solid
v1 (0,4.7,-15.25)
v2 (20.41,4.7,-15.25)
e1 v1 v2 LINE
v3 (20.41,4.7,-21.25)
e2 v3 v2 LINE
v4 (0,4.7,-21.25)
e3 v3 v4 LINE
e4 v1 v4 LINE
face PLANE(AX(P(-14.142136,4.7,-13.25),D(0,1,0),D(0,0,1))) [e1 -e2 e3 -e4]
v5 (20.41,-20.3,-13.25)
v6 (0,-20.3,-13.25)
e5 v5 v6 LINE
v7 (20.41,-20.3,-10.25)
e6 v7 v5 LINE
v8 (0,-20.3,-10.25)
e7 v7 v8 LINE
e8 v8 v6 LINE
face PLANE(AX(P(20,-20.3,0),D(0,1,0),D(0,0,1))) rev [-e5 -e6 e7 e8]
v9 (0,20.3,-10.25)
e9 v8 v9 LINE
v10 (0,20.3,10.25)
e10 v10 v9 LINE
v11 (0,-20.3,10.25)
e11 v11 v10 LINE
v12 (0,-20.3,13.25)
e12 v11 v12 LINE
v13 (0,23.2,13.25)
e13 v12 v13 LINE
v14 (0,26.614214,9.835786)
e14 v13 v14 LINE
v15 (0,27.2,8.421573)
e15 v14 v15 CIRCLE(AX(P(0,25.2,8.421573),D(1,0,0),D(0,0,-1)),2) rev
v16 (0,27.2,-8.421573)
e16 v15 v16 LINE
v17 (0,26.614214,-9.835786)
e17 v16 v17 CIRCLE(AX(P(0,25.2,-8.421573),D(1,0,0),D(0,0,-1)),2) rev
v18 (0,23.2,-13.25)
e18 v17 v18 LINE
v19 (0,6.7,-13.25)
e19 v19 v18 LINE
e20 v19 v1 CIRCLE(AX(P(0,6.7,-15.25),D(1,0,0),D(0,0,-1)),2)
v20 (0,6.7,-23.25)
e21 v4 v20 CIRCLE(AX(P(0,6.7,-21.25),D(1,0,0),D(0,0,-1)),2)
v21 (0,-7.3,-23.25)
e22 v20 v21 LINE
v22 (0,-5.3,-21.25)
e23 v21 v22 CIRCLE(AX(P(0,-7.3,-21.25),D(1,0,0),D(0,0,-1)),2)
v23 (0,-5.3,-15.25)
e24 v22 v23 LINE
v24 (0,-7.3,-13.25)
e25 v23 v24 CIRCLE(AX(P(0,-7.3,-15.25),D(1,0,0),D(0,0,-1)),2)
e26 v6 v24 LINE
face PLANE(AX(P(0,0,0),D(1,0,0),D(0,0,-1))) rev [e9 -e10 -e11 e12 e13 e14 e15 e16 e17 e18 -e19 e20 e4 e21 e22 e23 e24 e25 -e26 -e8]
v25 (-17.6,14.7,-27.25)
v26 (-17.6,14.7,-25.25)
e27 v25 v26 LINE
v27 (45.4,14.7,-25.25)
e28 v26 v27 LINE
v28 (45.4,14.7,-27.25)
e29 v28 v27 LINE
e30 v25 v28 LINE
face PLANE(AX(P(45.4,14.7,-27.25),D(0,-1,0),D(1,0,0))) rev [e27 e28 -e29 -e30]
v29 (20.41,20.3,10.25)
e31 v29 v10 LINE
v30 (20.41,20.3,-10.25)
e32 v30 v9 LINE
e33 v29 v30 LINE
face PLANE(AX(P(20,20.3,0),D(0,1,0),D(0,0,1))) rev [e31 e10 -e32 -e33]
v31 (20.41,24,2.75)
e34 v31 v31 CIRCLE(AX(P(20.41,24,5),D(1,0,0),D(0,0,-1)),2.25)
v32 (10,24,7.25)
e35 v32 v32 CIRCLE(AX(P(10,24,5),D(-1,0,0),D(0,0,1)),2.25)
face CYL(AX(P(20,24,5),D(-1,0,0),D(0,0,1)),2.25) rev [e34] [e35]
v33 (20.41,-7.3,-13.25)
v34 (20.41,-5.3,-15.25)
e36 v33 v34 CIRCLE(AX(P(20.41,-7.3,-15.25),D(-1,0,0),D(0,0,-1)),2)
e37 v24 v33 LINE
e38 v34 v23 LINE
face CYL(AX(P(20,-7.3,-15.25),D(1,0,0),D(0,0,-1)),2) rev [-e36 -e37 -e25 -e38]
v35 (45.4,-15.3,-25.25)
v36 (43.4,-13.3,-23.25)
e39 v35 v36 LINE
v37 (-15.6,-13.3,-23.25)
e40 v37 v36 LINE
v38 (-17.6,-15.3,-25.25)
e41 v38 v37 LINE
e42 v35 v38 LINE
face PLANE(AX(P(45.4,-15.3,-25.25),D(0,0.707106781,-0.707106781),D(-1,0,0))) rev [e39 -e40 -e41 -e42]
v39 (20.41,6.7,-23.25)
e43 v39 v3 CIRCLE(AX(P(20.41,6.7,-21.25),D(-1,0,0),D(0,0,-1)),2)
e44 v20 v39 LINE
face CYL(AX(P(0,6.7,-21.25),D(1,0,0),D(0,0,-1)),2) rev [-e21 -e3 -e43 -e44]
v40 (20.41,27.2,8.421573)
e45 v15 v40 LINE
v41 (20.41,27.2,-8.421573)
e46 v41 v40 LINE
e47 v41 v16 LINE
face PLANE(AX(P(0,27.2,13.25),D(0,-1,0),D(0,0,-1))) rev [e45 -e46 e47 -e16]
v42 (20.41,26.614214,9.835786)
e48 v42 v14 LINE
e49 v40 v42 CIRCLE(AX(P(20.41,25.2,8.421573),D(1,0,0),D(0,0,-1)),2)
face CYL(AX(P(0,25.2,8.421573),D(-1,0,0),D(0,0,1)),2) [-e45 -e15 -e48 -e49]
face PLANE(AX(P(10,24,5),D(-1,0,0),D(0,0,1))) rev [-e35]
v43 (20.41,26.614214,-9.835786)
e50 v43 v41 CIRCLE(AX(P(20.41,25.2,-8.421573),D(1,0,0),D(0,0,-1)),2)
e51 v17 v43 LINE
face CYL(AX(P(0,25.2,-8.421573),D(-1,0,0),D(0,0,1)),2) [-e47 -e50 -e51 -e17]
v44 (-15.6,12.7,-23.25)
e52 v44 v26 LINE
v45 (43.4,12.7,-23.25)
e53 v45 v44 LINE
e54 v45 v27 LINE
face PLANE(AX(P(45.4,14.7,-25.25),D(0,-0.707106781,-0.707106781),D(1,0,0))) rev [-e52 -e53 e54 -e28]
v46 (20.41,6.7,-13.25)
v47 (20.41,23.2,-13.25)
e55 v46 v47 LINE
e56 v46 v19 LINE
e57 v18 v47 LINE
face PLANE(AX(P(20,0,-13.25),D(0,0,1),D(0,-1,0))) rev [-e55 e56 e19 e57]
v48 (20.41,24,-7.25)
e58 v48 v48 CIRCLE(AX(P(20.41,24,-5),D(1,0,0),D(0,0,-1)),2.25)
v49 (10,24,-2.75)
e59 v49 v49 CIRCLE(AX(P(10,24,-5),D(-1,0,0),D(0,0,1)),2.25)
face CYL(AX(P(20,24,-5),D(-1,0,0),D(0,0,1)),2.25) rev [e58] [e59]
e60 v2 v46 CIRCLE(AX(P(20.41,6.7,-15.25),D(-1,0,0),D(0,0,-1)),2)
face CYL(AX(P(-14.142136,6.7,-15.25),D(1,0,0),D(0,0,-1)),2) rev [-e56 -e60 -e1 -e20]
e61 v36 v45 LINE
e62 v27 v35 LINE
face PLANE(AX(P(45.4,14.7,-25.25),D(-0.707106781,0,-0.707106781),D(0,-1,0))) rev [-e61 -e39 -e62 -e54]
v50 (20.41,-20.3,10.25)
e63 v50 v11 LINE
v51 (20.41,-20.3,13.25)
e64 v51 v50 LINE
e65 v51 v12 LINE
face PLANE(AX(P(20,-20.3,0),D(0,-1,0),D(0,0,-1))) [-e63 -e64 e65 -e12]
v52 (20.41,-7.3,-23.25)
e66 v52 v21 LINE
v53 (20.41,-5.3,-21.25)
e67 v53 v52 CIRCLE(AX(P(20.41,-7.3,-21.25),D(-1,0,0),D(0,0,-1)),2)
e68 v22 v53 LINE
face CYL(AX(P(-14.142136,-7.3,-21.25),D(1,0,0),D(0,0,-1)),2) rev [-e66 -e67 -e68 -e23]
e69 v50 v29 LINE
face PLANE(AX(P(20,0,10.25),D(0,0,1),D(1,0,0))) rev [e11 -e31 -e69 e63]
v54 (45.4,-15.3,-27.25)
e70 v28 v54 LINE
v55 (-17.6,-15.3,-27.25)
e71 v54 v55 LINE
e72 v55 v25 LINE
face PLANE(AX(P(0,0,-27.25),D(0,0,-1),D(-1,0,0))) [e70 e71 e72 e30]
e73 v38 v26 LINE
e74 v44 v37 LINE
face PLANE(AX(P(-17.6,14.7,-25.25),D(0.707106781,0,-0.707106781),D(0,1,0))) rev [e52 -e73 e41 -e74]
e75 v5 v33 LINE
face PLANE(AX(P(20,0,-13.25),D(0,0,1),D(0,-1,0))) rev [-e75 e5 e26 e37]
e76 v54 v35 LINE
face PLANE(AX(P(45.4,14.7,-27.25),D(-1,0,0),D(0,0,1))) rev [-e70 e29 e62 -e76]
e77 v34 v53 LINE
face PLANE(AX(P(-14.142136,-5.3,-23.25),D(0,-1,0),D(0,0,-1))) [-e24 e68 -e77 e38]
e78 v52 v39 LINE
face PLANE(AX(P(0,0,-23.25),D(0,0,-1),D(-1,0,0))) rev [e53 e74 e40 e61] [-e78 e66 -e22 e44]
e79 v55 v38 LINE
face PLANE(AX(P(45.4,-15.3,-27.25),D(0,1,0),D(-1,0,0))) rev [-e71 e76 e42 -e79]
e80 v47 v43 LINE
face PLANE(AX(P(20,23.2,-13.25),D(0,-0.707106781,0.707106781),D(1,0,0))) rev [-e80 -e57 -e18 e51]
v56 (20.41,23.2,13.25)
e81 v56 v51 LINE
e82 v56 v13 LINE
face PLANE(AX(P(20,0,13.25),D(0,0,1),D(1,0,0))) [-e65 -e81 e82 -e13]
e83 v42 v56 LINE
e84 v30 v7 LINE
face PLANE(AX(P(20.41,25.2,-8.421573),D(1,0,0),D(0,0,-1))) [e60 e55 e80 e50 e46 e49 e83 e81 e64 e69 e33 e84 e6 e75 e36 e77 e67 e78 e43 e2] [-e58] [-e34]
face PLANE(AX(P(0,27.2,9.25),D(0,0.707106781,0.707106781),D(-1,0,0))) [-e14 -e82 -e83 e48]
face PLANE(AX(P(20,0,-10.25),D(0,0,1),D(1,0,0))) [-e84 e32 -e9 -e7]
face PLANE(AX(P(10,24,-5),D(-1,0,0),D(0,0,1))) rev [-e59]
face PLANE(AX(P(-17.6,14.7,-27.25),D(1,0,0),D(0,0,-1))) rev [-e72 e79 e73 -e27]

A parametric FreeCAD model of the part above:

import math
import FreeCAD as App
import Part
import Sketcher

V = App.Vector


def edges_at(feature, points):
    """Names of the edges that pass closest to the given points."""
    edges = feature.Shape.Edges
    near = lambda p: min(range(len(edges)), key=lambda i: edges[i].distToShape(Part.Vertex(*p))[0])
    return sorted({f"Edge{near(p) + 1}" for p in points})


def add_polygon(sketch, points):
    """Adds a closed chain of lines whose ends are joined by coincident constraints."""
    first, n = sketch.GeometryCount, len(points)
    for a, b in zip(points, points[1:] + points[:1]):
        sketch.addGeometry(Part.LineSegment(App.Vector(*a, 0), App.Vector(*b, 0)), False)
    for i in range(n):
        sketch.addConstraint(Sketcher.Constraint("Coincident", first + i, 2, first + (i + 1) % n, 1))

doc = App.newDocument("Part")
params = doc.addObject("Spreadsheet::Sheet", "Params")
for row, (alias, value) in enumerate([
    ("sketch1_diameter", "4.5 mm"),
    ("sketch1_width", "50 mm"),
    ("sketch1_height", "3 mm"),
    ("sketch1_width2", "40.6 mm"),
    ("sketch1_height2", "26.5 mm"),
    ("pad1_length", "20 mm"),
    ("sketch2_diameter", "4.5 mm"),
    ("pad2_length", "10 mm"),
    ("sketch3_width", "2.5 mm"),
    ("sketch3_height", "26.5 mm"),
    ("chamfer_size", "4 mm"),
    ("chamfer2_size", "4 mm"),
    ("fillet_radius", "2 mm"),
    ("sketch4_width", "10 mm"),
    ("pad3_length", "20 mm"),
    ("fillet2_radius", "2 mm"),
    ("sketch5_width", "63 mm"),
    ("sketch5_height", "30 mm"),
    ("pad4_length", "4 mm"),
    ("chamfer3_size", "2 mm"),
    ("fillet3_radius", "2 mm"),
    ("sketch6_radius", "2 mm"),
    ("sketch6_diameter", "4.5 mm"),
    ("sketch6_width", "13 mm"),
    ("sketch6_width2", "14 mm"),
    ("sketch6_height", "3 mm"),
    ("pad5_length", "0.41 mm"),
], start=1):
    params.set(f"A{row}", alias)
    params.set(f"B{row}", "=" + value)
    params.setAlias(f"B{row}", alias)

body = doc.addObject("PartDesign::Body", "Body")

# Sketch on YZ plane
sketch1 = body.newObject("Sketcher::SketchObject", "Sketch")
sketch1.AttachmentSupport = (doc.getObject("YZ_Plane"), [""])
sketch1.MapMode = "FlatFace"
add_polygon(sketch1, [(-20.3, -10.25), (-20.3, -13.25), (29.7, -13.25), (29.7, 13.25), (-20.3, 13.25), (-20.3, 10.25), (20.3, 10.25), (20.3, -10.25)])  # lines 0-7
sketch1.addGeometry(Part.Circle(V(24, 5, 0), V(0, 0, 1), 2.25), False)  # 8
sketch1.addGeometry(Part.Circle(V(24, -5, 0), V(0, 0, 1), 2.25), False)  # 9
sketch1.addConstraint(Sketcher.Constraint("Vertical", 0))
sketch1.addConstraint(Sketcher.Constraint("Horizontal", 1))
sketch1.addConstraint(Sketcher.Constraint("Vertical", 2))
sketch1.addConstraint(Sketcher.Constraint("Horizontal", 3))
sketch1.addConstraint(Sketcher.Constraint("Vertical", 4))
sketch1.addConstraint(Sketcher.Constraint("Horizontal", 5))
sketch1.addConstraint(Sketcher.Constraint("Vertical", 6))
sketch1.addConstraint(Sketcher.Constraint("Horizontal", 7))
sketch1.addConstraint(Sketcher.Constraint("Equal", 8, 9))
sketch1.addConstraint(Sketcher.Constraint("Symmetric", 4, 2, 6, 2, -1, 1))
sketch1.addConstraint(Sketcher.Constraint("Symmetric", 8, 3, 9, 3, -1))
sketch1.addConstraint(Sketcher.Constraint("Symmetric", 0, 2, 3, 2, -1))
sketch1.addConstraint(Sketcher.Constraint("Diameter", 8, 4.5))
sketch1.addConstraint(Sketcher.Constraint("DistanceX", 1, 1, 1, 2, 50.0))
sketch1.addConstraint(Sketcher.Constraint("DistanceY", 0, 2, 0, 1, 3.0))
sketch1.addConstraint(Sketcher.Constraint("DistanceX", 5, 1, 5, 2, 40.6))
sketch1.addConstraint(Sketcher.Constraint("DistanceY", 2, 1, 2, 2, 26.5))
sketch1.addConstraint(Sketcher.Constraint("DistanceX", -1, 1, 8, 3, 24.0))
sketch1.addConstraint(Sketcher.Constraint("DistanceY", -1, 1, 8, 3, 5.0))
sketch1.setExpression("Constraints[20]", "Params.sketch1_diameter")
sketch1.setExpression("Constraints[21]", "Params.sketch1_width")
sketch1.setExpression("Constraints[22]", "Params.sketch1_height")
sketch1.setExpression("Constraints[23]", "Params.sketch1_width2")
sketch1.setExpression("Constraints[24]", "Params.sketch1_height2")
pad1 = body.newObject("PartDesign::Pad", "Pad")
pad1.Profile = sketch1
pad1.setExpression("Length", "Params.pad1_length")

# Sketch on YZ plane
sketch2 = body.newObject("Sketcher::SketchObject", "Sketch001")
sketch2.AttachmentSupport = (doc.getObject("YZ_Plane"), [""])
sketch2.MapMode = "FlatFace"
sketch2.addGeometry(Part.Circle(V(24, -5, 0), V(0, 0, 1), 2.25), False)
sketch2.addGeometry(Part.Circle(V(24, 5, 0), V(0, 0, 1), 2.25), False)
sketch2.addConstraint(Sketcher.Constraint("Equal", 0, 1))
sketch2.addConstraint(Sketcher.Constraint("Symmetric", 0, 3, 1, 3, -1))
sketch2.addConstraint(Sketcher.Constraint("Diameter", 0, 4.5))
sketch2.addConstraint(Sketcher.Constraint("DistanceX", -1, 1, 0, 3, 24.0))
sketch2.addConstraint(Sketcher.Constraint("DistanceY", 0, 3, -1, 1, 5.0))
sketch2.setExpression("Constraints[2]", "Params.sketch2_diameter")
pad2 = body.newObject("PartDesign::Pad", "Pad001")
pad2.Profile = sketch2
pad2.setExpression("Length", "Params.pad2_length")

# Sketch on YZ plane
sketch3 = body.newObject("Sketcher::SketchObject", "Sketch002")
sketch3.AttachmentSupport = (doc.getObject("YZ_Plane"), [""])
sketch3.MapMode = "FlatFace"
sketch3.AttachmentOffset = App.Placement(V(0, 0, 20), App.Rotation())
add_polygon(sketch3, [(29.7, 13.25), (27.2, 13.25), (27.2, -13.25), (29.7, -13.25)])  # lines 0-3
sketch3.addConstraint(Sketcher.Constraint("Horizontal", 0))
sketch3.addConstraint(Sketcher.Constraint("Vertical", 1))
sketch3.addConstraint(Sketcher.Constraint("Horizontal", 2))
sketch3.addConstraint(Sketcher.Constraint("Vertical", 3))
sketch3.addConstraint(Sketcher.Constraint("DistanceX", 0, 2, 0, 1, 2.5))
sketch3.addConstraint(Sketcher.Constraint("DistanceY", 1, 2, 1, 1, 26.5))
sketch3.addConstraint(Sketcher.Constraint("DistanceX", -1, 1, 0, 2, 27.2))
sketch3.addConstraint(Sketcher.Constraint("DistanceY", -1, 1, 0, 2, 13.25))
sketch3.setExpression("Constraints[8]", "Params.sketch3_width")
sketch3.setExpression("Constraints[9]", "Params.sketch3_height")
pocket1 = body.newObject("PartDesign::Pocket", "Pocket")
pocket1.Profile = sketch3
pocket1.Type = "ThroughAll"
doc.recompute()

chamfer = body.newObject("PartDesign::Chamfer", "Chamfer")
chamfer.Base = (pocket1, edges_at(pocket1, [(10, 27.2, -13.25)]))
chamfer.setExpression("Size", "Params.chamfer_size")
doc.recompute()

chamfer2 = body.newObject("PartDesign::Chamfer", "Chamfer001")
chamfer2.Base = (chamfer, edges_at(chamfer, [(10, 27.2, 13.25)]))
chamfer2.setExpression("Size", "Params.chamfer2_size")
doc.recompute()

fillet = body.newObject("PartDesign::Fillet", "Fillet")
fillet.Base = (chamfer2, edges_at(chamfer2, [(10, 27.2, -9.25), (10, 27.2, 9.25)]))
fillet.setExpression("Radius", "Params.fillet_radius")

# Sketch on YZ plane
sketch4 = body.newObject("Sketcher::SketchObject", "Sketch003")
sketch4.AttachmentSupport = (doc.getObject("YZ_Plane"), [""])
sketch4.MapMode = "FlatFace"
sketch4.AttachmentOffset = App.Placement(V(0, 0, 20), App.Rotation())
add_polygon(sketch4, [(4.7, -13.25), (-5.3, -13.25), (-5.3, -23.25), (4.7, -23.25)])  # lines 0-3
sketch4.addConstraint(Sketcher.Constraint("Horizontal", 0))
sketch4.addConstraint(Sketcher.Constraint("Vertical", 1))
sketch4.addConstraint(Sketcher.Constraint("Horizontal", 2))
sketch4.addConstraint(Sketcher.Constraint("Vertical", 3))
sketch4.addConstraint(Sketcher.Constraint("Equal", 2, 1))
sketch4.addConstraint(Sketcher.Constraint("DistanceX", 0, 2, 0, 1, 10.0))
sketch4.addConstraint(Sketcher.Constraint("DistanceX", 0, 2, -1, 1, 5.3))
sketch4.addConstraint(Sketcher.Constraint("DistanceY", 0, 2, -1, 1, 13.25))
sketch4.setExpression("Constraints[9]", "Params.sketch4_width")
pad3 = body.newObject("PartDesign::Pad", "Pad002")
pad3.Profile = sketch4
pad3.setExpression("Length", "Params.pad3_length")
pad3.Reversed = True
doc.recompute()

fillet2 = body.newObject("PartDesign::Fillet", "Fillet001")
fillet2.Base = (pad3, edges_at(pad3, [(10, -5.3, -13.25), (10, 4.7, -13.25)]))
fillet2.setExpression("Radius", "Params.fillet2_radius")

# Sketch on XY plane
sketch5 = body.newObject("Sketcher::SketchObject", "Sketch004")
sketch5.AttachmentSupport = (doc.getObject("XY_Plane"), [""])
sketch5.MapMode = "FlatFace"
sketch5.AttachmentOffset = App.Placement(V(0, 0, -23.25), App.Rotation())
add_polygon(sketch5, [(45.4, 14.7), (45.4, -15.3), (-17.6, -15.3), (-17.6, 14.7)])  # lines 0-3
sketch5.addConstraint(Sketcher.Constraint("Vertical", 0))
sketch5.addConstraint(Sketcher.Constraint("Horizontal", 1))
sketch5.addConstraint(Sketcher.Constraint("Vertical", 2))
sketch5.addConstraint(Sketcher.Constraint("Horizontal", 3))
sketch5.addConstraint(Sketcher.Constraint("DistanceX", 1, 2, 1, 1, 63.0))
sketch5.addConstraint(Sketcher.Constraint("DistanceY", 0, 2, 0, 1, 30.0))
sketch5.addConstraint(Sketcher.Constraint("DistanceX", -1, 1, 0, 2, 45.4))
sketch5.addConstraint(Sketcher.Constraint("DistanceY", 0, 2, -1, 1, 15.3))
sketch5.setExpression("Constraints[8]", "Params.sketch5_width")
sketch5.setExpression("Constraints[9]", "Params.sketch5_height")
pad4 = body.newObject("PartDesign::Pad", "Pad003")
pad4.Profile = sketch5
pad4.setExpression("Length", "Params.pad4_length")
pad4.Reversed = True
doc.recompute()

chamfer3 = body.newObject("PartDesign::Chamfer", "Chamfer002")
chamfer3.Base = (pad4, edges_at(pad4, [
    (45.4, -0.3, -23.25),
    (13.9, -15.3, -23.25),
    (-17.6, -0.3, -23.25),
    (13.9, 14.7, -23.25),
]))
chamfer3.setExpression("Size", "Params.chamfer3_size")
doc.recompute()

fillet3 = body.newObject("PartDesign::Fillet", "Fillet002")
fillet3.Base = (chamfer3, edges_at(chamfer3, [(10, 4.7, -23.25), (10, -5.3, -23.25)]))
fillet3.setExpression("Radius", "Params.fillet3_radius")

# Sketch on YZ plane
sketch6 = body.newObject("Sketcher::SketchObject", "Sketch005")
sketch6.AttachmentSupport = (doc.getObject("YZ_Plane"), [""])
sketch6.MapMode = "FlatFace"
sketch6.AttachmentOffset = App.Placement(V(0, 0, 20), App.Rotation())
sketch6.addGeometry(Part.LineSegment(V(23.2, -13.25, 0), V(26.614214, -9.835786, 0)), False)
sketch6.addGeometry(Part.ArcOfCircle(Part.Circle(V(25.2, -8.421573, 0), V(0, 0, 1), 2), math.radians(-45), math.radians(0)), False)
sketch6.addGeometry(Part.LineSegment(V(27.2, -8.421573, 0), V(27.2, 8.421573, 0)), False)
sketch6.addGeometry(Part.ArcOfCircle(Part.Circle(V(25.2, 8.421573, 0), V(0, 0, 1), 2), math.radians(0), math.radians(45)), False)
sketch6.addGeometry(Part.LineSegment(V(26.614214, 9.835786, 0), V(23.2, 13.25, 0)), False)
sketch6.addGeometry(Part.LineSegment(V(23.2, 13.25, 0), V(-20.3, 13.25, 0)), False)
sketch6.addGeometry(Part.LineSegment(V(-20.3, 13.25, 0), V(-20.3, 10.25, 0)), False)
sketch6.addGeometry(Part.LineSegment(V(-20.3, 10.25, 0), V(20.3, 10.25, 0)), False)
sketch6.addGeometry(Part.LineSegment(V(20.3, 10.25, 0), V(20.3, -10.25, 0)), False)
sketch6.addGeometry(Part.LineSegment(V(20.3, -10.25, 0), V(-20.3, -10.25, 0)), False)
sketch6.addGeometry(Part.LineSegment(V(-20.3, -10.25, 0), V(-20.3, -13.25, 0)), False)
sketch6.addGeometry(Part.LineSegment(V(-20.3, -13.25, 0), V(-7.3, -13.25, 0)), False)
sketch6.addGeometry(Part.ArcOfCircle(Part.Circle(V(-7.3, -15.25, 0), V(0, 0, 1), 2), math.radians(0), math.radians(90)), False)
sketch6.addGeometry(Part.LineSegment(V(-5.3, -15.25, 0), V(-5.3, -21.25, 0)), False)
sketch6.addGeometry(Part.ArcOfCircle(Part.Circle(V(-7.3, -21.25, 0), V(0, 0, 1), 2), math.radians(-90), math.radians(0)), False)
sketch6.addGeometry(Part.LineSegment(V(-7.3, -23.25, 0), V(6.7, -23.25, 0)), False)
sketch6.addGeometry(Part.ArcOfCircle(Part.Circle(V(6.7, -21.25, 0), V(0, 0, 1), 2), math.radians(-180), math.radians(-90)), False)
sketch6.addGeometry(Part.LineSegment(V(4.7, -21.25, 0), V(4.7, -15.25, 0)), False)
sketch6.addGeometry(Part.ArcOfCircle(Part.Circle(V(6.7, -15.25, 0), V(0, 0, 1), 2), math.radians(90), math.radians(180)), False)
sketch6.addGeometry(Part.LineSegment(V(6.7, -13.25, 0), V(23.2, -13.25, 0)), False)
sketch6.addGeometry(Part.Circle(V(24, 5, 0), V(0, 0, 1), 2.25), False)
sketch6.addGeometry(Part.Circle(V(24, -5, 0), V(0, 0, 1), 2.25), False)
sketch6.addConstraint(Sketcher.Constraint("Tangent", 0, 2, 1, 1))
sketch6.addConstraint(Sketcher.Constraint("Tangent", 1, 2, 2, 1))
sketch6.addConstraint(Sketcher.Constraint("Tangent", 2, 2, 3, 1))
sketch6.addConstraint(Sketcher.Constraint("Tangent", 3, 2, 4, 1))
sketch6.addConstraint(Sketcher.Constraint("Coincident", 4, 2, 5, 1))
sketch6.addConstraint(Sketcher.Constraint("Coincident", 5, 2, 6, 1))
sketch6.addConstraint(Sketcher.Constraint("Coincident", 6, 2, 7, 1))
sketch6.addConstraint(Sketcher.Constraint("Coincident", 7, 2, 8, 1))
sketch6.addConstraint(Sketcher.Constraint("Coincident", 8, 2, 9, 1))
sketch6.addConstraint(Sketcher.Constraint("Coincident", 9, 2, 10, 1))
sketch6.addConstraint(Sketcher.Constraint("Coincident", 10, 2, 11, 1))
sketch6.addConstraint(Sketcher.Constraint("Tangent", 11, 2, 12, 2))
sketch6.addConstraint(Sketcher.Constraint("Tangent", 12, 1, 13, 1))
sketch6.addConstraint(Sketcher.Constraint("Tangent", 13, 2, 14, 2))
sketch6.addConstraint(Sketcher.Constraint("Tangent", 14, 1, 15, 1))
sketch6.addConstraint(Sketcher.Constraint("Tangent", 15, 2, 16, 2))
sketch6.addConstraint(Sketcher.Constraint("Tangent", 16, 1, 17, 1))
sketch6.addConstraint(Sketcher.Constraint("Tangent", 17, 2, 18, 2))
sketch6.addConstraint(Sketcher.Constraint("Tangent", 18, 1, 19, 1))
sketch6.addConstraint(Sketcher.Constraint("Coincident", 19, 2, 0, 1))
sketch6.addConstraint(Sketcher.Constraint("Vertical", 2))
sketch6.addConstraint(Sketcher.Constraint("Horizontal", 5))
sketch6.addConstraint(Sketcher.Constraint("Vertical", 6))
sketch6.addConstraint(Sketcher.Constraint("Horizontal", 7))
sketch6.addConstraint(Sketcher.Constraint("Vertical", 8))
sketch6.addConstraint(Sketcher.Constraint("Horizontal", 9))
sketch6.addConstraint(Sketcher.Constraint("Vertical", 10))
sketch6.addConstraint(Sketcher.Constraint("Horizontal", 11))
sketch6.addConstraint(Sketcher.Constraint("Vertical", 13))
sketch6.addConstraint(Sketcher.Constraint("Horizontal", 15))
sketch6.addConstraint(Sketcher.Constraint("Vertical", 17))
sketch6.addConstraint(Sketcher.Constraint("Horizontal", 19))
sketch6.addConstraint(Sketcher.Constraint("Equal", 1, 3))
sketch6.addConstraint(Sketcher.Constraint("Equal", 3, 12))
sketch6.addConstraint(Sketcher.Constraint("Equal", 12, 14))
sketch6.addConstraint(Sketcher.Constraint("Equal", 14, 16))
sketch6.addConstraint(Sketcher.Constraint("Equal", 16, 18))
sketch6.addConstraint(Sketcher.Constraint("Equal", 20, 21))
sketch6.addConstraint(Sketcher.Constraint("Symmetric", 6, 2, 8, 2, -1, 1))
sketch6.addConstraint(Sketcher.Constraint("Symmetric", 20, 3, 21, 3, -1))
sketch6.addConstraint(Sketcher.Constraint("Symmetric", 0, 2, 3, 2, -1))
sketch6.addConstraint(Sketcher.Constraint("Symmetric", 5, 2, 10, 2, -1))
sketch6.addConstraint(Sketcher.Constraint("Perpendicular", 0, 4))
sketch6.addConstraint(Sketcher.Constraint("Horizontal", 12, 3, 18, 3))
sketch6.addConstraint(Sketcher.Constraint("Radius", 1, 2.0))
sketch6.addConstraint(Sketcher.Constraint("Diameter", 20, 4.5))
sketch6.addConstraint(Sketcher.Constraint("DistanceX", 11, 1, 11, 2, 13.0))
sketch6.addConstraint(Sketcher.Constraint("DistanceX", 15, 1, 15, 2, 14.0))
sketch6.addConstraint(Sketcher.Constraint("DistanceY", 6, 2, 6, 1, 3.0))
sketch6.addConstraint(Sketcher.Constraint("DistanceY", 13, 2, 13, 1, 6.0))
sketch6.addConstraint(Sketcher.Constraint("DistanceX", 5, 2, 5, 1, 43.5))
sketch6.addConstraint(Sketcher.Constraint("DistanceX", 7, 1, 7, 2, 40.6))
sketch6.addConstraint(Sketcher.Constraint("DistanceY", 8, 2, 8, 1, 20.5))
sketch6.addConstraint(Sketcher.Constraint("DistanceX", -1, 1, 20, 3, 24.0))
sketch6.addConstraint(Sketcher.Constraint("DistanceY", -1, 1, 20, 3, 5.0))
sketch6.addConstraint(Sketcher.Constraint("DistanceX", 4, 2, 3, 3, 2.0))
sketch6.setExpression("Constraints[44]", "Params.sketch6_radius")
sketch6.setExpression("Constraints[45]", "Params.sketch6_diameter")
sketch6.setExpression("Constraints[46]", "Params.sketch6_width")
sketch6.setExpression("Constraints[47]", "Params.sketch6_width2")
sketch6.setExpression("Constraints[48]", "Params.sketch6_height")
pad5 = body.newObject("PartDesign::Pad", "Pad004")
pad5.Profile = sketch6
pad5.setExpression("Length", "Params.pad5_length")

doc.recompute()
